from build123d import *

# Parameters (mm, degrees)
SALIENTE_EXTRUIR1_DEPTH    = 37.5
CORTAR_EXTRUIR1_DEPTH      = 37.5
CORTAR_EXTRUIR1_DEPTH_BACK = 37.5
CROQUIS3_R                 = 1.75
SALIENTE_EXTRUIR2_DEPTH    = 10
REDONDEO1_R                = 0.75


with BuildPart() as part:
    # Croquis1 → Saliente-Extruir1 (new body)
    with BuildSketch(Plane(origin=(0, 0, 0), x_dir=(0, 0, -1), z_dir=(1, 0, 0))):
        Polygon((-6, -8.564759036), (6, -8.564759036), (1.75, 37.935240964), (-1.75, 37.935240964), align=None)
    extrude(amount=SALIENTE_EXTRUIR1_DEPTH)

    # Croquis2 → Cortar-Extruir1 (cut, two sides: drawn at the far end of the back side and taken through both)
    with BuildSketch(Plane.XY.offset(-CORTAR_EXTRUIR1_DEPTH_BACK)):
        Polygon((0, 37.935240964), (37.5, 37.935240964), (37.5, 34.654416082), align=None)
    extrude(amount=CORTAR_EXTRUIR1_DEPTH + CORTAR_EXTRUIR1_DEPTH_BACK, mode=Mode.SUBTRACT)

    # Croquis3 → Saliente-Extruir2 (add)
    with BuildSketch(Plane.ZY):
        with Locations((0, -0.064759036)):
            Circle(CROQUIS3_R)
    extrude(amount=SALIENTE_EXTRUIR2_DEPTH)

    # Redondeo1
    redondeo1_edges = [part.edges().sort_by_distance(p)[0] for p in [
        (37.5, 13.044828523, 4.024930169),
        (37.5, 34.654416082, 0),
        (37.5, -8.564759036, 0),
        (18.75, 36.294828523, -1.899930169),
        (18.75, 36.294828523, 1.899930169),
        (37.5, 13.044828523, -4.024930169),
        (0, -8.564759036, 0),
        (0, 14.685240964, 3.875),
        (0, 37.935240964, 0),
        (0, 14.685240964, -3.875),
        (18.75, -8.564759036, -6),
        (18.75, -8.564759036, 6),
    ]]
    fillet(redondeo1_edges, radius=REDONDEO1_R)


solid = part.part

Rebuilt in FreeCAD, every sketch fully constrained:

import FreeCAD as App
import Part
import Sketcher
Q = App.Units.Quantity


def edges_at(feature, points):
    """Names of the edges that pass closest to the given points."""
    edges = feature.Shape.Edges
    near = lambda p: min(range(len(edges)), key=lambda i: edges[i].distToShape(Part.Vertex(*p))[0])
    return sorted({f"Edge{near(p) + 1}" for p in points})


def add_polygon(sketch, points):
    """Adds a closed chain of lines whose ends are joined by coincident constraints."""
    first, n = sketch.GeometryCount, len(points)
    for a, b in zip(points, points[1:] + points[:1]):
        sketch.addGeometry(Part.LineSegment(App.Vector(*a, 0), App.Vector(*b, 0)), False)
    for i in range(n):
        sketch.addConstraint(Sketcher.Constraint("Coincident", first + i, 2, first + (i + 1) % n, 1))

doc = App.newDocument("Part")
params = doc.addObject("Spreadsheet::Sheet", "Params")
for row, (alias, value) in enumerate([
    ("sketch1_height", "12 mm"),
    ("sketch1_height2", "3.5 mm"),
    ("pad1_length", "37.5 mm"),
    ("sketch2_width", "37.5 mm"),
    ("sketch3_diameter", "3.5 mm"),
    ("pad2_length", "10 mm"),
    ("fillet_radius", "0.75 mm"),
], start=1):
    params.set(f"A{row}", alias)
    params.set(f"B{row}", "=" + value)
    params.setAlias(f"B{row}", alias)

body = doc.addObject("PartDesign::Body", "Body")

# Sketch on YZ plane
sketch1 = body.newObject("Sketcher::SketchObject", "Sketch")
sketch1.AttachmentSupport = (doc.getObject("YZ_Plane"), [""])
sketch1.MapMode = "FlatFace"
add_polygon(sketch1, [(-8.564759, 6), (-8.564759, -6), (37.935241, -1.75), (37.935241, 1.75)])  # lines 0-3
sketch1.addConstraint([
    Sketcher.Constraint("Vertical", 0),
    Sketcher.Constraint("Vertical", 2),
    Sketcher.Constraint("Equal", 1, 3),
    Sketcher.Constraint("DistanceY", 0, 2, 0, 1, Q("12 mm")),
    Sketcher.Constraint("DistanceY", 2, 1, 2, 2, Q("3.5 mm")),
    Sketcher.Constraint("DistanceY", 0, 2, -1, 1, Q("6 mm")),
    Sketcher.Constraint("DistanceX", 0, 2, 1, 2, Q("46.5 mm")),
    Sketcher.Constraint("DistanceX", 0, 2, -1, 1, Q("8.564759 mm")),
])
sketch1.setExpression("Constraints[7]", "Params.sketch1_height")
sketch1.setExpression("Constraints[8]", "Params.sketch1_height2")
pad1 = body.newObject("PartDesign::Pad", "Pad")
pad1.Profile = sketch1
pad1.setExpression("Length", "Params.pad1_length")

# Sketch on XY plane
sketch2 = body.newObject("Sketcher::SketchObject", "Sketch001")
sketch2.AttachmentSupport = (doc.getObject("XY_Plane"), [""])
sketch2.MapMode = "FlatFace"
add_polygon(sketch2, [(37.5, 37.935241), (0, 37.935241), (37.5, 34.654416)])  # lines 0-2
sketch2.addConstraint([
    Sketcher.Constraint("Horizontal", 0),
    Sketcher.Constraint("Vertical", 2),
    Sketcher.Constraint("PointOnObject", 0, 2, -2),
    Sketcher.Constraint("Angle", 1, Q("-5 deg")),
    Sketcher.Constraint("DistanceX", 0, 2, 0, 1, Q("37.5 mm")),
    Sketcher.Constraint("DistanceY", -1, 1, 0, 2, Q("37.935241 mm")),
])
sketch2.setExpression("Constraints[7]", "Params.sketch2_width")
pocket1 = body.newObject("PartDesign::Pocket", "Pocket")
pocket1.Profile = sketch2
pocket1.Type = "ThroughAll"
pocket1.Midplane = True

# Sketch on YZ plane
sketch3 = body.newObject("Sketcher::SketchObject", "Sketch002")
sketch3.AttachmentSupport = (doc.getObject("YZ_Plane"), [""])
sketch3.MapMode = "FlatFace"
sketch3.addGeometry(Part.Circle(App.Vector(-0.064759, 0, 0), App.Vector(0, 0, 1), 1.75), False)
sketch3.addConstraint([
    Sketcher.Constraint("PointOnObject", 0, 3, -1),
    Sketcher.Constraint("Diameter", 0, Q("3.5 mm")),
    Sketcher.Constraint("DistanceX", 0, 3, -1, 1, Q("0.064759 mm")),
])
sketch3.setExpression("Constraints[1]", "Params.sketch3_diameter")
pad2 = body.newObject("PartDesign::Pad", "Pad001")
pad2.Profile = sketch3
pad2.setExpression("Length", "Params.pad2_length")
pad2.Reversed = True
doc.recompute()

fillet = body.newObject("PartDesign::Fillet", "Fillet")
fillet.Base = (pad2, edges_at(pad2, [
    (37.5, 13.045, 4.025),
    (37.5, 34.654, 0),
    (37.5, -8.565, 0),
    (18.75, 36.295, -1.9),
    (18.75, 36.295, 1.9),
    (37.5, 13.045, -4.025),
    (0, -8.565, 0),
    (0, 14.685, 3.875),
    (0, 37.935, 0),
    (0, 14.685, -3.875),
    (18.75, -8.565, -6),
    (18.75, -8.565, 6),
]))
fillet.setExpression("Radius", "Params.fillet_radius")

doc.recompute()
